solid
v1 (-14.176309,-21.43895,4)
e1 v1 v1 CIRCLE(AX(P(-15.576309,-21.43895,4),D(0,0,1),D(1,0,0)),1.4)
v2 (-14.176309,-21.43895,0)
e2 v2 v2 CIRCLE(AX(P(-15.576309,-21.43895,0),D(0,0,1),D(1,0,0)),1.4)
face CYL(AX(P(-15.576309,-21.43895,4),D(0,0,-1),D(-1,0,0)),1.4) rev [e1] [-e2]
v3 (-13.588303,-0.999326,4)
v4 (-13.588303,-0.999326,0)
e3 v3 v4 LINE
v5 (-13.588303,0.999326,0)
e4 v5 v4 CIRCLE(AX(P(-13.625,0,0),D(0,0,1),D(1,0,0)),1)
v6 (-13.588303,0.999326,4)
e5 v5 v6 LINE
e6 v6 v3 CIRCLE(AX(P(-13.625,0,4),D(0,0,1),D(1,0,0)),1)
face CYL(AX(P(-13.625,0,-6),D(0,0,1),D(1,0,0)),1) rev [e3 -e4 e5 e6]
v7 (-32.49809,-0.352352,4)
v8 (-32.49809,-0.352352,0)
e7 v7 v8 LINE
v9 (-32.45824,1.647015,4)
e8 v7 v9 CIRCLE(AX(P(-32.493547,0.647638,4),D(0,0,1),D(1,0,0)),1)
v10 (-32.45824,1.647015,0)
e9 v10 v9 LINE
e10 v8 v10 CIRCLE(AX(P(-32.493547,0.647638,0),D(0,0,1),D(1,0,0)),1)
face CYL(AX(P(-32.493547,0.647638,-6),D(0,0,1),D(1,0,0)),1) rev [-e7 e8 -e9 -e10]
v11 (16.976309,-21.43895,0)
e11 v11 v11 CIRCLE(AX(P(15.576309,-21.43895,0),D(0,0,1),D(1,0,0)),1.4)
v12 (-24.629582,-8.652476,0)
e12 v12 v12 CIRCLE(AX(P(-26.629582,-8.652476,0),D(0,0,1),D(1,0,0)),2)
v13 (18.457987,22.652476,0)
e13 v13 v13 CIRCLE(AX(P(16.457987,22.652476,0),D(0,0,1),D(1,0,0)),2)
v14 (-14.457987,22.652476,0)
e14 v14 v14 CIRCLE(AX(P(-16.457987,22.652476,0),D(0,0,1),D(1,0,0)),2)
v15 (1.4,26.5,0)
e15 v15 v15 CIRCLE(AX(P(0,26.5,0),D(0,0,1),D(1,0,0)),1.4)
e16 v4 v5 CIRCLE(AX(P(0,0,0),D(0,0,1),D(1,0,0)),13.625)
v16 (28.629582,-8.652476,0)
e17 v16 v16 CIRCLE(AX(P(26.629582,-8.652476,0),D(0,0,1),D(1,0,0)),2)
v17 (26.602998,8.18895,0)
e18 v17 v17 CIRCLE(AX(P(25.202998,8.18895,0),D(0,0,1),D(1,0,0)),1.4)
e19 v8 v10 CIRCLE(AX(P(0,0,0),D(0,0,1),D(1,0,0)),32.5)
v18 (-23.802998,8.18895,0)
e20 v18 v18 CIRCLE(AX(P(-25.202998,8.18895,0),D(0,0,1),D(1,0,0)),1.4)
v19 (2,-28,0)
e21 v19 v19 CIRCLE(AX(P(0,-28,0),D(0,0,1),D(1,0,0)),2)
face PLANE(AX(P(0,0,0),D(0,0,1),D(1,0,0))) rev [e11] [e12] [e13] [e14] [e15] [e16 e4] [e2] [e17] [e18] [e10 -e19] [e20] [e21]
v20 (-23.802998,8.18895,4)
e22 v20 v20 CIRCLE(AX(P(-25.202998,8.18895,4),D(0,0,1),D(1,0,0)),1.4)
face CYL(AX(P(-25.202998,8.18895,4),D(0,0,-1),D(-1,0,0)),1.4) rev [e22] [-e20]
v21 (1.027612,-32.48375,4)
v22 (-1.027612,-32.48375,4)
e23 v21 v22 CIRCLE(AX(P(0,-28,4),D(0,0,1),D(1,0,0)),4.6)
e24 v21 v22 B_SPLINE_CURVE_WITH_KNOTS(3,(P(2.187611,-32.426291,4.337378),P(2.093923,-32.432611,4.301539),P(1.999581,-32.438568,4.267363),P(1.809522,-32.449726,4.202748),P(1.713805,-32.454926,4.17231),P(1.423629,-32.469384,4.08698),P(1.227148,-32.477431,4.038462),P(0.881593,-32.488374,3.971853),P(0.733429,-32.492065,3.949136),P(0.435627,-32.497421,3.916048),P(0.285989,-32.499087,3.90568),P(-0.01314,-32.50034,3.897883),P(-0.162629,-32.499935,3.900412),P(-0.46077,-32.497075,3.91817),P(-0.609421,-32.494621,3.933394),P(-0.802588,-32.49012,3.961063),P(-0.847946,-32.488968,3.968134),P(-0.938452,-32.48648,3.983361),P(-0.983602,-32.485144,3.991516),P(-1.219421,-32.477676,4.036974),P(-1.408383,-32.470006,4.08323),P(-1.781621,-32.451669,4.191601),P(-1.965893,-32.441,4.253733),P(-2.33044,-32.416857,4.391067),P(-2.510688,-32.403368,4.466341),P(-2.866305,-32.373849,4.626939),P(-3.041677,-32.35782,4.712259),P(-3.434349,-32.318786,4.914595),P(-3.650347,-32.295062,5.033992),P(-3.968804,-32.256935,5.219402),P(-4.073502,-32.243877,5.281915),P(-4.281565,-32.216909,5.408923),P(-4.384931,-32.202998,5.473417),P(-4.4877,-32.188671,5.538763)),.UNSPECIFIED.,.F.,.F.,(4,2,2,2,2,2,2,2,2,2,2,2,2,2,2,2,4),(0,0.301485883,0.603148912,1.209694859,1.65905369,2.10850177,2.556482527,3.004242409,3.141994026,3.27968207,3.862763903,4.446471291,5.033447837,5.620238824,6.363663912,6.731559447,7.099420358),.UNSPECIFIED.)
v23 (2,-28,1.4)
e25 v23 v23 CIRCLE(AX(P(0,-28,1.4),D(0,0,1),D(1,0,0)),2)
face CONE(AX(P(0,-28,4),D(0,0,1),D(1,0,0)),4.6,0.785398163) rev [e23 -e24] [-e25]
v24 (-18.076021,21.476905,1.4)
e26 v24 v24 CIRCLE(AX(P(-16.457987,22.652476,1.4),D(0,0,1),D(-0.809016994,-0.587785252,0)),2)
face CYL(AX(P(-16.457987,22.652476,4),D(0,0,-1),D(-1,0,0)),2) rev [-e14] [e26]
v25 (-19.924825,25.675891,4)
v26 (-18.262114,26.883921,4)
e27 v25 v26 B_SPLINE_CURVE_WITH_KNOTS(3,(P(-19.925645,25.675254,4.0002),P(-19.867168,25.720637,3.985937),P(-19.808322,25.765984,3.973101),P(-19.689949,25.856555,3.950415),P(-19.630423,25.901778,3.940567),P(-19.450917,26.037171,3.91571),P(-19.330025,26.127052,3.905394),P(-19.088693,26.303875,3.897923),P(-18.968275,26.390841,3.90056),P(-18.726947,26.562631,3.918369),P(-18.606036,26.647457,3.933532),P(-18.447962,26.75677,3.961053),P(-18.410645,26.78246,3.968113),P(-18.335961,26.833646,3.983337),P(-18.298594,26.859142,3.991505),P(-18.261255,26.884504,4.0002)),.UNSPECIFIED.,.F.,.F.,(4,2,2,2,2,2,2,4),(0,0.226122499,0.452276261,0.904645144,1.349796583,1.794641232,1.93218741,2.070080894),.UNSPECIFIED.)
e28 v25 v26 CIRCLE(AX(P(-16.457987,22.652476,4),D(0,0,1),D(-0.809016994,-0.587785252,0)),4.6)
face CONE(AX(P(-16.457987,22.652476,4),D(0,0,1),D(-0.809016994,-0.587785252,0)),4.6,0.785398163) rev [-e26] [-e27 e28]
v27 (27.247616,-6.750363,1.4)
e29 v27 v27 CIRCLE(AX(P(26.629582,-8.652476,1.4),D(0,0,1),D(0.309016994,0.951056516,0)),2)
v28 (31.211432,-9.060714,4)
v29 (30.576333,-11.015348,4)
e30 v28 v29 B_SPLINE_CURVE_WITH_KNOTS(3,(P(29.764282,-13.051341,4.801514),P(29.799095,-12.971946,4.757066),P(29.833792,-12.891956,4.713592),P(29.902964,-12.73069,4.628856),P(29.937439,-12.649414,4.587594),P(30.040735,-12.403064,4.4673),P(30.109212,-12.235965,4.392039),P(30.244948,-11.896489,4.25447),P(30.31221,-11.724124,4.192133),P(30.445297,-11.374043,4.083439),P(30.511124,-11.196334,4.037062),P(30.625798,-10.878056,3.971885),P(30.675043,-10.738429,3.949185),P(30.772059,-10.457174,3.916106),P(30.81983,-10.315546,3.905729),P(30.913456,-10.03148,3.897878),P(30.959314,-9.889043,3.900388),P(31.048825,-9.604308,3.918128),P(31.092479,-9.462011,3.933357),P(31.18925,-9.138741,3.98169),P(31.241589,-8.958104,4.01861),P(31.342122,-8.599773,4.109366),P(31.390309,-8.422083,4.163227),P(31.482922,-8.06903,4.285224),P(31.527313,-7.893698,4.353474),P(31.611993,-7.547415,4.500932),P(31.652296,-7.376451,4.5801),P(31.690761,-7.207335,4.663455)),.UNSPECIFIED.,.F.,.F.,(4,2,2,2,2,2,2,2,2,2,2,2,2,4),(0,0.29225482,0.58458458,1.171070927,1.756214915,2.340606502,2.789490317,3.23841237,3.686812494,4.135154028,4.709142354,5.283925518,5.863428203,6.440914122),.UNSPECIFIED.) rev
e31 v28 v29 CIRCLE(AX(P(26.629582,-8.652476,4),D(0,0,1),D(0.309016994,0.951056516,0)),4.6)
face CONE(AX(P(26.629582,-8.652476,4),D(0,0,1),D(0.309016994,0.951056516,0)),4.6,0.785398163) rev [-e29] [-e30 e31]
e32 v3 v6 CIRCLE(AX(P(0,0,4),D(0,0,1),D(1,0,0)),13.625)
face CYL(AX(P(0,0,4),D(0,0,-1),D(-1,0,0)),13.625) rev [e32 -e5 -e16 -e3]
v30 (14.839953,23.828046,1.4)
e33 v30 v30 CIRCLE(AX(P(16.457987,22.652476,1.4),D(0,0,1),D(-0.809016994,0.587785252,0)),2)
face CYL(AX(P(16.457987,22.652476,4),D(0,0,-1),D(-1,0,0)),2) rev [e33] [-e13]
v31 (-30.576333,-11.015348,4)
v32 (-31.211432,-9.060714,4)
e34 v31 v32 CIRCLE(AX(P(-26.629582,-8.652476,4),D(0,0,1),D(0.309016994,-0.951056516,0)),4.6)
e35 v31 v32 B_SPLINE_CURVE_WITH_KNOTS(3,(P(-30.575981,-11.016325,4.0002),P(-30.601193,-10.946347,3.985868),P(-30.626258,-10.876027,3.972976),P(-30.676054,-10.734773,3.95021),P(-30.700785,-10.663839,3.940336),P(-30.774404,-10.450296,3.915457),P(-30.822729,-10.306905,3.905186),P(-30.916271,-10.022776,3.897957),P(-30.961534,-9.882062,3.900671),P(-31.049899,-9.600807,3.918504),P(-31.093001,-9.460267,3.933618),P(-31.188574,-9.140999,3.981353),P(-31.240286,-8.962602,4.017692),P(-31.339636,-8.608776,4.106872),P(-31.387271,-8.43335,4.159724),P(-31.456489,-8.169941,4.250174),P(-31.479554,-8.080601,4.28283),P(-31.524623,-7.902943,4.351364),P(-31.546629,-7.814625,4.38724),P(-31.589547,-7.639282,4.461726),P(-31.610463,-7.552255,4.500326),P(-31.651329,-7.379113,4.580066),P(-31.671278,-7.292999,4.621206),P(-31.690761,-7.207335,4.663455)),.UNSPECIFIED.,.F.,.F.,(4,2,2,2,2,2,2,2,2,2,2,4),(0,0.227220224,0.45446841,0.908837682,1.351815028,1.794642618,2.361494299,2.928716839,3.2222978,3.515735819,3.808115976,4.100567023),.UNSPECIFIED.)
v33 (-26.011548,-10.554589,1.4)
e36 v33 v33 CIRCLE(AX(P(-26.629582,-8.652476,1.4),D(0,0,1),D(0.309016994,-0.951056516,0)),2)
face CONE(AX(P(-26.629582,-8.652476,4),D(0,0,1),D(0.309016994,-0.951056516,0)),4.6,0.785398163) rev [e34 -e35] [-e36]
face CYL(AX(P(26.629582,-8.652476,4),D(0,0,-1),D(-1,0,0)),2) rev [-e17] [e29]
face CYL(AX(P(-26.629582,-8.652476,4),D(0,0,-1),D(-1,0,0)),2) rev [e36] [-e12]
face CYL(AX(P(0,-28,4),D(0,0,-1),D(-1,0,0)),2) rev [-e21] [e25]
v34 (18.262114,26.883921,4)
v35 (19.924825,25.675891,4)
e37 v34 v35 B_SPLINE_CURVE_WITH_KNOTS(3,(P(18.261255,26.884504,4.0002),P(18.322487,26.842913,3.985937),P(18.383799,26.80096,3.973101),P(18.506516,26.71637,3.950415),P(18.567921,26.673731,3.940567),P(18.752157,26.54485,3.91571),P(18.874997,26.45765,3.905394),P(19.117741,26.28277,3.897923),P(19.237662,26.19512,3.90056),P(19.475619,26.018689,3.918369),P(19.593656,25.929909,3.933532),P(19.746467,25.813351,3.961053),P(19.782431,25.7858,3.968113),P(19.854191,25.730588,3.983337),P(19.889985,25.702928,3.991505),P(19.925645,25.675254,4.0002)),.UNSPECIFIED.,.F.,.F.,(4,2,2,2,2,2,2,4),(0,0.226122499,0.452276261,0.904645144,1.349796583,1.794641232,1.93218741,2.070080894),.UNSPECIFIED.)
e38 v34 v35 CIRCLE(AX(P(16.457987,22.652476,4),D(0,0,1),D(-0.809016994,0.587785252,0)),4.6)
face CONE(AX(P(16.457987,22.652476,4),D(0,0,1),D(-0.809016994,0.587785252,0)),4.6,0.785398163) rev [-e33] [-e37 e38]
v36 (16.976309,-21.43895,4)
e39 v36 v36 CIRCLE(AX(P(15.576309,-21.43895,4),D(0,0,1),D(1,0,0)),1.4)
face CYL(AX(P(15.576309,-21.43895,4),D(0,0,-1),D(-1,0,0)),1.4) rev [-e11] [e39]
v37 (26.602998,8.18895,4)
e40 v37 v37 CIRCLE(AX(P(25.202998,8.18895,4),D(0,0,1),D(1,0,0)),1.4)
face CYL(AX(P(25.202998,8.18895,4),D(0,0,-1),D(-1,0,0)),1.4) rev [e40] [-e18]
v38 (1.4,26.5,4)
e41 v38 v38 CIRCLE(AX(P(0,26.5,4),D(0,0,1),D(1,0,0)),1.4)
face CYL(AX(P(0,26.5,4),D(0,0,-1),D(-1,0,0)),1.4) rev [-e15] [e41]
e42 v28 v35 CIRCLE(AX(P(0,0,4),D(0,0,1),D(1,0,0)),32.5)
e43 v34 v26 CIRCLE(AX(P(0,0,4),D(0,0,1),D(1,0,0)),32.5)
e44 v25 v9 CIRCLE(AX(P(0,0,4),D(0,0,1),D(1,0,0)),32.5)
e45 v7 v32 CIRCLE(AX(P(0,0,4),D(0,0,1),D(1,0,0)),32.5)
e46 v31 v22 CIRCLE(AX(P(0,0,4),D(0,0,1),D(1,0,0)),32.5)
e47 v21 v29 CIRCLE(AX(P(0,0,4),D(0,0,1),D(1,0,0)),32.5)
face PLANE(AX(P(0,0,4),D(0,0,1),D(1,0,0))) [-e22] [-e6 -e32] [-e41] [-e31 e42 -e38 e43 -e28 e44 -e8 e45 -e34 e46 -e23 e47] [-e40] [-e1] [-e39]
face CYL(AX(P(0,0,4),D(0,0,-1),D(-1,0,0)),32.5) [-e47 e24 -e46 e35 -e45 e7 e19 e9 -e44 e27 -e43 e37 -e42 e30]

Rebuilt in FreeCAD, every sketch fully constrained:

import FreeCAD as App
import Part
import Sketcher
from FreeCAD import Vector
Q = App.Units.Quantity

doc = App.newDocument("Part")
params = doc.addObject("Spreadsheet::Sheet", "Params")
for row, (alias, value) in enumerate([
    ("sketch1_diameter", "65 mm"),
    ("sketch1_diameter2", "4 mm"),
    ("sketch1_diameter3", "2.8 mm"),
    ("sketch1_diameter4", "27.25 mm"),
    ("pad1_length", "4 mm"),
    ("sketch2_diameter", "2 mm"),
    ("pocket1_length", "10 mm"),
    ("sketch3_width", "2 mm"),
    ("sketch3_width2", "4.6 mm"),
    ("groove_angle", "360 deg"),
], start=1):
    params.set(f"A{row}", alias)
    params.set(f"B{row}", "=" + value)
    params.setAlias(f"B{row}", alias)

body = doc.addObject("PartDesign::Body", "Body")

sketch1 = body.newObject("Sketcher::SketchObject", "Sketch")
sketch1.AttachmentSupport = (doc.getObject("XY_Plane"), [""])
sketch1.MapMode = "FlatFace"
sketch1.addGeometry(Part.Circle(Vector(0, 0, 0), Vector(0, 0, 1), 32.5), False)
sketch1.addGeometry(Part.Circle(Vector(-15.6, -21.4, 0), Vector(0, 0, 1), 1.4), False)
sketch1.addGeometry(Part.Circle(Vector(0, -28, 0), Vector(0, 0, 1), 2), False)
sketch1.addGeometry(Part.Circle(Vector(-26.6, -8.7, 0), Vector(0, 0, 1), 2), False)
sketch1.addGeometry(Part.Circle(Vector(15.6, -21.4, 0), Vector(0, 0, 1), 1.4), False)
sketch1.addGeometry(Part.Circle(Vector(26.6, -8.7, 0), Vector(0, 0, 1), 2), False)
sketch1.addGeometry(Part.Circle(Vector(-25.2, 8.2, 0), Vector(0, 0, 1), 1.4), False)
sketch1.addGeometry(Part.Circle(Vector(0, 0, 0), Vector(0, 0, 1), 13.6), False)
sketch1.addGeometry(Part.Circle(Vector(-16.5, 22.7, 0), Vector(0, 0, 1), 2), False)
sketch1.addGeometry(Part.Circle(Vector(0, 26.5, 0), Vector(0, 0, 1), 1.4), False)
sketch1.addGeometry(Part.Circle(Vector(25.2, 8.2, 0), Vector(0, 0, 1), 1.4), False)
sketch1.addGeometry(Part.Circle(Vector(16.5, 22.7, 0), Vector(0, 0, 1), 2), False)
sketch1.addConstraint(Sketcher.Constraint("Coincident", 0, 3, -1, 1))
sketch1.addConstraint(Sketcher.Constraint("Coincident", 7, 3, -1, 1))
sketch1.addConstraint(Sketcher.Constraint("Equal", 2, 3))
sketch1.addConstraint(Sketcher.Constraint("Equal", 1, 4))
sketch1.addConstraint(Sketcher.Constraint("Equal", 3, 5))
sketch1.addConstraint(Sketcher.Constraint("Equal", 4, 6))
sketch1.addConstraint(Sketcher.Constraint("Equal", 5, 8))
sketch1.addConstraint(Sketcher.Constraint("Equal", 6, 9))
sketch1.addConstraint(Sketcher.Constraint("Equal", 9, 10))
sketch1.addConstraint(Sketcher.Constraint("Equal", 8, 11))
sketch1.addConstraint(Sketcher.Constraint("Symmetric", 1, 3, 4, 3, -2))
sketch1.addConstraint(Sketcher.Constraint("Symmetric", 3, 3, 5, 3, -2))
sketch1.addConstraint(Sketcher.Constraint("Symmetric", 6, 3, 10, 3, -2))
sketch1.addConstraint(Sketcher.Constraint("Symmetric", 8, 3, 11, 3, -2))
sketch1.addConstraint(Sketcher.Constraint("PointOnObject", 2, 3, -2))
sketch1.addConstraint(Sketcher.Constraint("PointOnObject", 9, 3, -2))
sketch1.addConstraint(Sketcher.Constraint("Diameter", 0, Q("65 mm")))
sketch1.addConstraint(Sketcher.Constraint("Diameter", 2, Q("4 mm")))
sketch1.addConstraint(Sketcher.Constraint("Diameter", 1, Q("2.8 mm")))
sketch1.addConstraint(Sketcher.Constraint("Diameter", 7, Q("27.25 mm")))
sketch1.addConstraint(Sketcher.Constraint("DistanceY", 2, 3, -1, 1, Q("28 mm")))
sketch1.addConstraint(Sketcher.Constraint("DistanceY", -1, 1, 9, 3, Q("26.5 mm")))
sketch1.addConstraint(Sketcher.Constraint("DistanceY", 1, 3, 6, 3, Q("29.627901 mm")))
sketch1.addConstraint(Sketcher.Constraint("DistanceX", 1, 3, -1, 1, Q("15.576309 mm")))
sketch1.addConstraint(Sketcher.Constraint("DistanceY", 1, 3, -1, 1, Q("21.43895 mm")))
sketch1.addConstraint(Sketcher.Constraint("DistanceX", 3, 3, 4, 3, Q("42.205892 mm")))
sketch1.addConstraint(Sketcher.Constraint("DistanceX", 6, 3, 1, 3, Q("9.626688 mm")))
sketch1.addConstraint(Sketcher.Constraint("DistanceX", 6, 3, 8, 3, Q("8.745011 mm")))
sketch1.addConstraint(Sketcher.Constraint("DistanceY", 3, 3, 8, 3, Q("31.304952 mm")))
sketch1.addConstraint(Sketcher.Constraint("DistanceY", 3, 3, -1, 1, Q("8.652476 mm")))
sketch1.setExpression("Constraints[16]", "Params.sketch1_diameter")
sketch1.setExpression("Constraints[17]", "Params.sketch1_diameter2")
sketch1.setExpression("Constraints[18]", "Params.sketch1_diameter3")
sketch1.setExpression("Constraints[19]", "Params.sketch1_diameter4")
pad1 = body.newObject("PartDesign::Pad", "Pad")
pad1.Profile = sketch1
pad1.setExpression("Length", "Params.pad1_length")

sketch2 = body.newObject("Sketcher::SketchObject", "Sketch001")
sketch2.AttachmentSupport = (doc.getObject("XY_Plane"), [""])
sketch2.MapMode = "FlatFace"
sketch2.AttachmentOffset = App.Placement(Vector(0, 0, 4), App.Rotation())
sketch2.addGeometry(Part.Circle(Vector(-13.6, 0, 0), Vector(0, 0, 1), 1), False)
sketch2.addGeometry(Part.Circle(Vector(-32.5, 0.6, 0), Vector(0, 0, 1), 1), False)
sketch2.addConstraint(Sketcher.Constraint("Equal", 0, 1))
sketch2.addConstraint(Sketcher.Constraint("PointOnObject", 0, 3, -1))
sketch2.addConstraint(Sketcher.Constraint("Diameter", 0, Q("2 mm")))
sketch2.addConstraint(Sketcher.Constraint("DistanceX", 0, 3, -1, 1, Q("13.625 mm")))
sketch2.addConstraint(Sketcher.Constraint("DistanceY", -1, 1, 1, 3, Q("0.647638 mm")))
sketch2.addConstraint(Sketcher.Constraint("DistanceX", 1, 3, -1, 1, Q("32.493547 mm")))
sketch2.setExpression("Constraints[2]", "Params.sketch2_diameter")
pocket1 = body.newObject("PartDesign::Pocket", "Pocket")
pocket1.Profile = sketch2
pocket1.setExpression("Length", "Params.pocket1_length")

sketch3 = body.newObject("Sketcher::SketchObject", "Sketch002")
sketch3.AttachmentSupport = (doc.getObject("YZ_Plane"), [""])
sketch3.MapMode = "FlatFace"
sketch3.addGeometry(Part.LineSegment(Vector(-28, 1.4, 0), Vector(-28, 4, 0)), False)
sketch3.addGeometry(Part.LineSegment(Vector(-28, 4, 0), Vector(-32.6, 4, 0)), False)
sketch3.addGeometry(Part.LineSegment(Vector(-32.6, 4, 0), Vector(-30, 1.4, 0)), False)
sketch3.addGeometry(Part.LineSegment(Vector(-30, 1.4, 0), Vector(-28, 1.4, 0)), False)
sketch3.addGeometry(Part.LineSegment(Vector(-28, 4, 0), Vector(-28, 1.4, 0)), True)
sketch3.addConstraint(Sketcher.Constraint("Coincident", 0, 2, 1, 1))
sketch3.addConstraint(Sketcher.Constraint("Coincident", 1, 2, 2, 1))
sketch3.addConstraint(Sketcher.Constraint("Coincident", 2, 2, 3, 1))
sketch3.addConstraint(Sketcher.Constraint("Coincident", 3, 2, 0, 1))
sketch3.addConstraint(Sketcher.Constraint("Vertical", 0))
sketch3.addConstraint(Sketcher.Constraint("Horizontal", 1))
sketch3.addConstraint(Sketcher.Constraint("Horizontal", 3))
sketch3.addConstraint(Sketcher.Constraint("Vertical", 4))
sketch3.addConstraint(Sketcher.Constraint("Coincident", 4, 1, 0, 2))
sketch3.addConstraint(Sketcher.Constraint("Horizontal", 2, 2, 4, 2))
sketch3.addConstraint(Sketcher.Constraint("DistanceX", 3, 1, 3, 2, Q("2 mm")))
sketch3.addConstraint(Sketcher.Constraint("Angle", 2, Q("-45 deg")))
sketch3.addConstraint(Sketcher.Constraint("DistanceX", 1, 2, 1, 1, Q("4.6 mm")))
sketch3.addConstraint(Sketcher.Constraint("DistanceX", 0, 2, -1, 1, Q("28 mm")))
sketch3.addConstraint(Sketcher.Constraint("DistanceY", -1, 1, 0, 2, Q("4 mm")))
sketch3.setExpression("Constraints[10]", "Params.sketch3_width")
sketch3.setExpression("Constraints[12]", "Params.sketch3_width2")
groove = body.newObject("PartDesign::Groove", "Groove")
groove.Profile = sketch3
groove.ReferenceAxis = (sketch3, ["Axis0"])
groove.setExpression("Angle", "Params.groove_angle")
doc.recompute()

polarpattern = body.newObject("PartDesign::PolarPattern", "PolarPattern")
polarpattern.Originals = [groove]
polarpattern.Axis = (doc.getObject("Z_Axis"), [""])
polarpattern.Angle = 360
polarpattern.Occurrences = 5
body.Tip = polarpattern

doc.recompute()
